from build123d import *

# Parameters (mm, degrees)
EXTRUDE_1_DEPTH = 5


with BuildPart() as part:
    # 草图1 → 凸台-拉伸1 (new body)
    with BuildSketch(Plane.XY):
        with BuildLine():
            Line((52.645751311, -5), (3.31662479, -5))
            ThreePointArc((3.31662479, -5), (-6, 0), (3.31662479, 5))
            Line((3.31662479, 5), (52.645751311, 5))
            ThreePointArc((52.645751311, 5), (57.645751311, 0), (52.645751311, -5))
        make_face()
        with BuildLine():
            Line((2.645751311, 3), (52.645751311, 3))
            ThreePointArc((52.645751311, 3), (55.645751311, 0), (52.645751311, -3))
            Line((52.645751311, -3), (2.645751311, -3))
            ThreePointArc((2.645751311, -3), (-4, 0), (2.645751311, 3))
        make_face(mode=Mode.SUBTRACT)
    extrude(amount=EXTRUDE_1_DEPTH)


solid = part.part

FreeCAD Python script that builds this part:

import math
import FreeCAD as App
import Part
import Sketcher

doc = App.newDocument("Part")
body = doc.addObject("PartDesign::Body", "Body")

# Sketch on XY plane
sketch1 = body.newObject("Sketcher::SketchObject", "Sketch")
sketch1.AttachmentSupport = (doc.getObject("XY_Plane"), [""])
sketch1.MapMode = "FlatFace"
sketch1.addGeometry([
    Part.LineSegment(App.Vector(3.3, -5, 0), App.Vector(52.6, -5, 0)),  # 0
    Part.ArcOfCircle(Part.Circle(App.Vector(52.6, 0, 0), App.Vector(0, 0, 1), 5), math.radians(-90), math.radians(90)),  # 1
    Part.LineSegment(App.Vector(52.6, 5, 0), App.Vector(3.3, 5, 0)),  # 2
    Part.ArcOfCircle(Part.Circle(App.Vector(0, 0, 0), App.Vector(0, 0, 1), 6), math.radians(56), math.radians(304)),  # 3
    Part.LineSegment(App.Vector(2.6, 3, 0), App.Vector(52.6, 3, 0)),  # 4
    Part.ArcOfCircle(Part.Circle(App.Vector(52.6, 0, 0), App.Vector(0, 0, 1), 3), math.radians(-90), math.radians(90)),  # 5
    Part.LineSegment(App.Vector(52.6, -3, 0), App.Vector(2.6, -3, 0)),  # 6
    Part.ArcOfCircle(Part.Circle(App.Vector(0, 0, 0), App.Vector(0, 0, 1), 4), math.radians(49), math.radians(311)),  # 7
], False)
sketch1.addConstraint([
    Sketcher.Constraint("Tangent", 0, 2, 1, 1),
    Sketcher.Constraint("Tangent", 1, 2, 2, 1),
    Sketcher.Constraint("Coincident", 2, 2, 3, 1),
    Sketcher.Constraint("Coincident", 3, 2, 0, 1),
    Sketcher.Constraint("Tangent", 4, 2, 5, 2),
    Sketcher.Constraint("Tangent", 5, 1, 6, 1),
    Sketcher.Constraint("Coincident", 6, 2, 7, 2),
    Sketcher.Constraint("Coincident", 7, 1, 4, 1),
    Sketcher.Constraint("Horizontal", 0),
    Sketcher.Constraint("Horizontal", 2),
    Sketcher.Constraint("Horizontal", 4),
    Sketcher.Constraint("Horizontal", 6),
    Sketcher.Constraint("Coincident", 3, 3, -1, 1),
    Sketcher.Constraint("Coincident", 7, 3, -1, 1),
    Sketcher.Constraint("Coincident", 5, 3, 1, 3),
    Sketcher.Constraint("PointOnObject", 1, 3, -1),
    Sketcher.Constraint("Radius", 1, 5.0),
    Sketcher.Constraint("Radius", 3, 6.0),
    Sketcher.Constraint("Radius", 5, 3.0),
    Sketcher.Constraint("Radius", 7, 4.0),
    Sketcher.Constraint("DistanceX", 4, 1, 4, 2, 50.0),
])
pad1 = body.newObject("PartDesign::Pad", "Pad")
pad1.Profile = sketch1
pad1.Length = 5

doc.recompute()
